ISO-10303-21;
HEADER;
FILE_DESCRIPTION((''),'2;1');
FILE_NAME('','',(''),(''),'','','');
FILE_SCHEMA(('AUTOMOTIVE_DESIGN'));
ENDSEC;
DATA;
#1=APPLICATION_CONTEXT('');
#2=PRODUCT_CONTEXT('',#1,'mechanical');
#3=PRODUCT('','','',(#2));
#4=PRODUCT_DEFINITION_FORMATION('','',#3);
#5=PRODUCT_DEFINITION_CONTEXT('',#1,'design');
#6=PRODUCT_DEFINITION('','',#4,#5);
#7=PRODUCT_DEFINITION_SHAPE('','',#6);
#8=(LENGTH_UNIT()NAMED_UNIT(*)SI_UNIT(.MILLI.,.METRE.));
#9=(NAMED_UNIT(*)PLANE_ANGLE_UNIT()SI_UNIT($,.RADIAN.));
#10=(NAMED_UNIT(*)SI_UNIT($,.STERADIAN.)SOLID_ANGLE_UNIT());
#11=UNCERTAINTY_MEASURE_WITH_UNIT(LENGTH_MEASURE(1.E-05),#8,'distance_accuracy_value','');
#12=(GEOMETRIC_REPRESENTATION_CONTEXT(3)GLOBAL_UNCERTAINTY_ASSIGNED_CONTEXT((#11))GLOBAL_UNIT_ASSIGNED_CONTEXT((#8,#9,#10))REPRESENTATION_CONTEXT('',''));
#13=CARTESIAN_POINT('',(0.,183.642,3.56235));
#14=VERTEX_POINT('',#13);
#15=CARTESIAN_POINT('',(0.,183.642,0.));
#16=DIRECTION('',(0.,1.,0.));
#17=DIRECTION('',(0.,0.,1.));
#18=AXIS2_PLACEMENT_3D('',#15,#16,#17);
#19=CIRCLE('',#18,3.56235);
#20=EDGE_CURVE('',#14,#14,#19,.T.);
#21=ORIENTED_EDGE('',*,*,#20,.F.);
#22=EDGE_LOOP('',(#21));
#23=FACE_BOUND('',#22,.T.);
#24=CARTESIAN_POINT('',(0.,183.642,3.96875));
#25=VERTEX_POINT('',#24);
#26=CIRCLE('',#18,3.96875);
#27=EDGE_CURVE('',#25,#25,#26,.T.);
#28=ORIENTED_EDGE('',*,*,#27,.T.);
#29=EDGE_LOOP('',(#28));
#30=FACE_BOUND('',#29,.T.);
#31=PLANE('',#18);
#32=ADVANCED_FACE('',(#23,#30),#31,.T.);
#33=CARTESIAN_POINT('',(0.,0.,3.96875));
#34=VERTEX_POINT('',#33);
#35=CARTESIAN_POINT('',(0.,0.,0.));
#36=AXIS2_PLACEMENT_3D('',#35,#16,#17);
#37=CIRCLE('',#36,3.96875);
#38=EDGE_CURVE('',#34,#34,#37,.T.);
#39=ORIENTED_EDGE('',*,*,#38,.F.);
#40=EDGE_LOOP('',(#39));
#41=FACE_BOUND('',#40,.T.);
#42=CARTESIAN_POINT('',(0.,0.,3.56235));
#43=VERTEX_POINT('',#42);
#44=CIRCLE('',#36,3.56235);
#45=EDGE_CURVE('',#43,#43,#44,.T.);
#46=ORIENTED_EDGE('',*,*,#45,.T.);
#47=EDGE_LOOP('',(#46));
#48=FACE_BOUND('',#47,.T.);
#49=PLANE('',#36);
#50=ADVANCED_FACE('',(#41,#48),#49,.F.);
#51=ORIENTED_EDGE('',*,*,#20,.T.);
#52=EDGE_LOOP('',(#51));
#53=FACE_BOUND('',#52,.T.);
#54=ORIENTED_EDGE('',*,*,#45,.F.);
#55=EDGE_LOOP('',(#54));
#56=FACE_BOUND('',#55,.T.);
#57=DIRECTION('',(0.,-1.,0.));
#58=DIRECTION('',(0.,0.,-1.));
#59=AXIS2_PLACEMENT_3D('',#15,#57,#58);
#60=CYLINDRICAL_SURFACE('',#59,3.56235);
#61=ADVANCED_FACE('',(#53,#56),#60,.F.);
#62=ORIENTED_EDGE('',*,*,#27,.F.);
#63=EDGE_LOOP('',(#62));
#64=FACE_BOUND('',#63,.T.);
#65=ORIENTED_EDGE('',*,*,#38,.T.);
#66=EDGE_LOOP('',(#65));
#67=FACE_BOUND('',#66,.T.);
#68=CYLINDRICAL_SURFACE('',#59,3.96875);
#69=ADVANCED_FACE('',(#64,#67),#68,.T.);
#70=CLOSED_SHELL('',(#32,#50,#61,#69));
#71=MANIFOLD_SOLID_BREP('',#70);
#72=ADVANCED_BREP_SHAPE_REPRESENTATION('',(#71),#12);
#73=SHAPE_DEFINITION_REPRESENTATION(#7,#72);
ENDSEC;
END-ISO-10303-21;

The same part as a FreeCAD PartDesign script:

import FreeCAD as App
import Part
import Sketcher

V = App.Vector
Q = App.Units.Quantity

doc = App.newDocument("Part")
body = doc.addObject("PartDesign::Body", "Body")

# Sketch on XZ plane
sketch1 = doc.addObject("Sketcher::SketchObject", "Sketch")
body.addObject(sketch1)
sketch1.AttachmentSupport = (doc.XZ_Plane, [""])
sketch1.MapMode = "FlatFace"
sketch1.addGeometry([
    Part.Circle(V(0, 0, 0), V(0, 0, 1), 3.96875),
    Part.Circle(V(0, 0, 0), V(0, 0, 1), 3.56235),
], False)
sketch1.addConstraint([
    Sketcher.Constraint("Coincident", 0, 3, -1, 1),
    Sketcher.Constraint("Coincident", 1, 3, -1, 1),
    Sketcher.Constraint("Diameter", 0, Q("0.3125 in")),
    Sketcher.Constraint("Diameter", 1, Q("0.2805 in")),
])
pad1 = doc.addObject("PartDesign::Pad", "Pad")
body.addObject(pad1)
pad1.Profile = sketch1
pad1.Length = Q("7.23 in")
pad1.Reversed = True

doc.recompute()
